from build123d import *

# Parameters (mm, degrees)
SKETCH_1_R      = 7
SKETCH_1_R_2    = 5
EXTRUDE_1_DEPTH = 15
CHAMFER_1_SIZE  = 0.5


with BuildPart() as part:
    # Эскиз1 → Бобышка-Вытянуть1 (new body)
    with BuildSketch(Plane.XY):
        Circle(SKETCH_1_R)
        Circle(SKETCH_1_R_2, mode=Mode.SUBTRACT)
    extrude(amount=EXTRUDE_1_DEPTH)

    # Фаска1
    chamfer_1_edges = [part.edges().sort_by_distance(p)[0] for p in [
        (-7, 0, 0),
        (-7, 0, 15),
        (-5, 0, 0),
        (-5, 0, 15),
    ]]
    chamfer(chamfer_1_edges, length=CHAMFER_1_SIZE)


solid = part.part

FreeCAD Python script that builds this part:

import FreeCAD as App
import Part
import Sketcher


def edges_at(feature, points):
    """Names of the edges that pass closest to the given points."""
    edges = feature.Shape.Edges
    near = lambda p: min(range(len(edges)), key=lambda i: edges[i].distToShape(Part.Vertex(*p))[0])
    return sorted({f"Edge{near(p) + 1}" for p in points})

doc = App.newDocument("Part")
params = doc.addObject("Spreadsheet::Sheet", "Params")
for row, (alias, value) in enumerate([
    ("sketch1_diameter", "14 mm"),
    ("sketch1_diameter2", "10 mm"),
    ("pad1_length", "15 mm"),
    ("chamfer_size", "0.5 mm"),
], start=1):
    params.set(f"A{row}", alias)
    params.set(f"B{row}", "=" + value)
    params.setAlias(f"B{row}", alias)

body = doc.addObject("PartDesign::Body", "Body")

# Sketch on XY plane
sketch1 = body.newObject("Sketcher::SketchObject", "Sketch")
sketch1.AttachmentSupport = (doc.getObject("XY_Plane"), [""])
sketch1.MapMode = "FlatFace"
sketch1.addGeometry(Part.Circle(App.Vector(0, 0, 0), App.Vector(0, 0, 1), 7), False)
sketch1.addGeometry(Part.Circle(App.Vector(0, 0, 0), App.Vector(0, 0, 1), 5), False)
sketch1.addConstraint(Sketcher.Constraint("Coincident", 0, 3, -1, 1))
sketch1.addConstraint(Sketcher.Constraint("Coincident", 1, 3, -1, 1))
sketch1.addConstraint(Sketcher.Constraint("Diameter", 0, 14.0))
sketch1.addConstraint(Sketcher.Constraint("Diameter", 1, 10.0))
sketch1.setExpression("Constraints[2]", "Params.sketch1_diameter")
sketch1.setExpression("Constraints[3]", "Params.sketch1_diameter2")
pad1 = body.newObject("PartDesign::Pad", "Pad")
pad1.Profile = sketch1
pad1.setExpression("Length", "Params.pad1_length")
doc.recompute()

chamfer = body.newObject("PartDesign::Chamfer", "Chamfer")
chamfer.Base = (pad1, edges_at(pad1, [
    (-7, 0, 0),
    (-7, 0, 15),
    (-5, 0, 0),
    (-5, 0, 15),
]))
chamfer.setExpression("Size", "Params.chamfer_size")

doc.recompute()
